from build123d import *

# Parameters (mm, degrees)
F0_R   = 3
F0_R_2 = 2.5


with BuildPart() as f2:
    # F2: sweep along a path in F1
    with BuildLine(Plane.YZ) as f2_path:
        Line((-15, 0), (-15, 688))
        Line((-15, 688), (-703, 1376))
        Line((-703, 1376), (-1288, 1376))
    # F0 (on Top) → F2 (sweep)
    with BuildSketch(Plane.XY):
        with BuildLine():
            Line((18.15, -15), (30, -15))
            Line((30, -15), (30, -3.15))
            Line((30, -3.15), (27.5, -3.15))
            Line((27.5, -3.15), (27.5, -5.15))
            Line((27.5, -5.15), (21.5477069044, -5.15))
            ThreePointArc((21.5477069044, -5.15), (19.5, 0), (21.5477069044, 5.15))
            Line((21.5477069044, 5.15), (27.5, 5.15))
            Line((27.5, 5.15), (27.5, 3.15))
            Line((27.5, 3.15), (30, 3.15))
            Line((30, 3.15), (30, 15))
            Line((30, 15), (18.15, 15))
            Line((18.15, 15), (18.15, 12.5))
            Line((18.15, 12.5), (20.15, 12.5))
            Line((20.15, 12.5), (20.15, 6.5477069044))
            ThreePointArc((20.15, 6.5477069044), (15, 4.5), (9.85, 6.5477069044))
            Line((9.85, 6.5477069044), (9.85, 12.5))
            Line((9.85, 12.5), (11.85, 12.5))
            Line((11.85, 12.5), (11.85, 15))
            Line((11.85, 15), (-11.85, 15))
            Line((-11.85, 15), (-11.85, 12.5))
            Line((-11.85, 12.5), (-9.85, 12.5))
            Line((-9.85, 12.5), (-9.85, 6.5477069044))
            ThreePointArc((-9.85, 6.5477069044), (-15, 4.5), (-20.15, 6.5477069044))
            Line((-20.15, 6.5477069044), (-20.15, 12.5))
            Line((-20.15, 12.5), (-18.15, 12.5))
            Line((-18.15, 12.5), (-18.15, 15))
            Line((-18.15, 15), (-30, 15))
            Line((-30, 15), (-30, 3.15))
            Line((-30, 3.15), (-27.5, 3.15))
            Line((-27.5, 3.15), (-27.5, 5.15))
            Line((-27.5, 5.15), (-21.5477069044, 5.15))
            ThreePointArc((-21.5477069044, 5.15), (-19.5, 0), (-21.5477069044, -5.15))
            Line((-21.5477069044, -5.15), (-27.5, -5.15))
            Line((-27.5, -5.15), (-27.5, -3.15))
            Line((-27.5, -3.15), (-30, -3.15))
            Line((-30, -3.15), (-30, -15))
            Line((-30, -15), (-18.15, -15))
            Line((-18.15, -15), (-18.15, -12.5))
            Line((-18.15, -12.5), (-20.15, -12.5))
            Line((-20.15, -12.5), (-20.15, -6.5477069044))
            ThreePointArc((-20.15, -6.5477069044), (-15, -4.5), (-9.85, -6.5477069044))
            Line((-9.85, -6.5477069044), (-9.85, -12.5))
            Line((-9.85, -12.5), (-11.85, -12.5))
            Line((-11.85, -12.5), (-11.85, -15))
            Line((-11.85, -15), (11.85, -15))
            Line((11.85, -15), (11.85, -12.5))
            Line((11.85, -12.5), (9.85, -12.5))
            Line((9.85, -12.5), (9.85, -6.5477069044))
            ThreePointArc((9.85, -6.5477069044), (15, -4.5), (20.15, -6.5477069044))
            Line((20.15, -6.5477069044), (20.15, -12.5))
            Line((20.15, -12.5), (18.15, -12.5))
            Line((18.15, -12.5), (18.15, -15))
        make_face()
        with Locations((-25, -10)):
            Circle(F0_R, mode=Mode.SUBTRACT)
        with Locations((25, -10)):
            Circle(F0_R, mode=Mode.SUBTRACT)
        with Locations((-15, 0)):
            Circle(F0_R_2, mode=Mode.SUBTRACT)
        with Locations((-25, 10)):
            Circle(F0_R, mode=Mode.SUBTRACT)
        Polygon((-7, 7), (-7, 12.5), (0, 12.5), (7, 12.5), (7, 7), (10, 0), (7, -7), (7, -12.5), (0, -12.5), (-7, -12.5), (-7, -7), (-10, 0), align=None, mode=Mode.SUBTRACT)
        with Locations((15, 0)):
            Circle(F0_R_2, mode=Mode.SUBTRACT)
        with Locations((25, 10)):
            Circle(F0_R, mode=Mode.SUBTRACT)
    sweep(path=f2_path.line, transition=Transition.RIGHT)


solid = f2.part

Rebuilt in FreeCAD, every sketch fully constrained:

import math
import FreeCAD as App
import Part
import Sketcher
from FreeCAD import Vector
Q = App.Units.Quantity


def add_polygon(sketch, points):
    """Adds a closed chain of lines whose ends are joined by coincident constraints."""
    first, n = sketch.GeometryCount, len(points)
    for a, b in zip(points, points[1:] + points[:1]):
        sketch.addGeometry(Part.LineSegment(App.Vector(*a, 0), App.Vector(*b, 0)), False)
    for i in range(n):
        sketch.addConstraint(Sketcher.Constraint("Coincident", first + i, 2, first + (i + 1) % n, 1))

doc = App.newDocument("Part")
body = doc.addObject("PartDesign::Body", "Body")

# Sketch on XY plane
sketch1 = body.newObject("Sketcher::SketchObject", "Sketch")
sketch1.AttachmentSupport = (doc.getObject("XY_Plane"), [""])
sketch1.MapMode = "FlatFace"
sketch1.addGeometry(Part.LineSegment(Vector(18.15, -15, 0), Vector(30, -15, 0)), False)  # 0
sketch1.addGeometry(Part.LineSegment(Vector(30, -15, 0), Vector(30, -3.15, 0)), False)  # 1
sketch1.addGeometry(Part.LineSegment(Vector(30, -3.15, 0), Vector(27.5, -3.15, 0)), False)  # 2
sketch1.addGeometry(Part.LineSegment(Vector(27.5, -3.15, 0), Vector(27.5, -5.15, 0)), False)  # 3
sketch1.addGeometry(Part.LineSegment(Vector(27.5, -5.15, 0), Vector(21.547707, -5.15, 0)), False)  # 4
sketch1.addGeometry(Part.ArcOfCircle(Part.Circle(Vector(27, 0, 0), Vector(0, 0, 1), 7.5), math.radians(136.633178), math.radians(223.366822)), False)  # 5
sketch1.addGeometry(Part.LineSegment(Vector(21.547707, 5.15, 0), Vector(27.5, 5.15, 0)), False)  # 6
sketch1.addGeometry(Part.LineSegment(Vector(27.5, 5.15, 0), Vector(27.5, 3.15, 0)), False)  # 7
sketch1.addGeometry(Part.LineSegment(Vector(27.5, 3.15, 0), Vector(30, 3.15, 0)), False)  # 8
sketch1.addGeometry(Part.LineSegment(Vector(30, 3.15, 0), Vector(30, 15, 0)), False)  # 9
sketch1.addGeometry(Part.LineSegment(Vector(30, 15, 0), Vector(18.15, 15, 0)), False)  # 10
sketch1.addGeometry(Part.LineSegment(Vector(18.15, 15, 0), Vector(18.15, 12.5, 0)), False)  # 11
sketch1.addGeometry(Part.LineSegment(Vector(18.15, 12.5, 0), Vector(20.15, 12.5, 0)), False)  # 12
sketch1.addGeometry(Part.LineSegment(Vector(20.15, 12.5, 0), Vector(20.15, 6.547707, 0)), False)  # 13
sketch1.addGeometry(Part.ArcOfCircle(Part.Circle(Vector(15, 12, 0), Vector(0, 0, 1), 7.5), math.radians(-133.366822), math.radians(-46.633178)), False)  # 14
sketch1.addGeometry(Part.LineSegment(Vector(9.85, 6.547707, 0), Vector(9.85, 12.5, 0)), False)  # 15
sketch1.addGeometry(Part.LineSegment(Vector(9.85, 12.5, 0), Vector(11.85, 12.5, 0)), False)  # 16
sketch1.addGeometry(Part.LineSegment(Vector(11.85, 12.5, 0), Vector(11.85, 15, 0)), False)  # 17
sketch1.addGeometry(Part.LineSegment(Vector(11.85, 15, 0), Vector(-11.85, 15, 0)), False)  # 18
sketch1.addGeometry(Part.LineSegment(Vector(-11.85, 15, 0), Vector(-11.85, 12.5, 0)), False)  # 19
sketch1.addGeometry(Part.LineSegment(Vector(-11.85, 12.5, 0), Vector(-9.85, 12.5, 0)), False)  # 20
sketch1.addGeometry(Part.LineSegment(Vector(-9.85, 12.5, 0), Vector(-9.85, 6.547707, 0)), False)  # 21
sketch1.addGeometry(Part.ArcOfCircle(Part.Circle(Vector(-15, 12, 0), Vector(0, 0, 1), 7.5), math.radians(-133.366822), math.radians(-46.633178)), False)  # 22
sketch1.addGeometry(Part.LineSegment(Vector(-20.15, 6.547707, 0), Vector(-20.15, 12.5, 0)), False)  # 23
sketch1.addGeometry(Part.LineSegment(Vector(-20.15, 12.5, 0), Vector(-18.15, 12.5, 0)), False)  # 24
sketch1.addGeometry(Part.LineSegment(Vector(-18.15, 12.5, 0), Vector(-18.15, 15, 0)), False)  # 25
sketch1.addGeometry(Part.LineSegment(Vector(-18.15, 15, 0), Vector(-30, 15, 0)), False)  # 26
sketch1.addGeometry(Part.LineSegment(Vector(-30, 15, 0), Vector(-30, 3.15, 0)), False)  # 27
sketch1.addGeometry(Part.LineSegment(Vector(-30, 3.15, 0), Vector(-27.5, 3.15, 0)), False)  # 28
sketch1.addGeometry(Part.LineSegment(Vector(-27.5, 3.15, 0), Vector(-27.5, 5.15, 0)), False)  # 29
sketch1.addGeometry(Part.LineSegment(Vector(-27.5, 5.15, 0), Vector(-21.547707, 5.15, 0)), False)  # 30
sketch1.addGeometry(Part.ArcOfCircle(Part.Circle(Vector(-27, 0, 0), Vector(0, 0, 1), 7.5), math.radians(-43.366822), math.radians(43.366822)), False)  # 31
sketch1.addGeometry(Part.LineSegment(Vector(-21.547707, -5.15, 0), Vector(-27.5, -5.15, 0)), False)  # 32
sketch1.addGeometry(Part.LineSegment(Vector(-27.5, -5.15, 0), Vector(-27.5, -3.15, 0)), False)  # 33
sketch1.addGeometry(Part.LineSegment(Vector(-27.5, -3.15, 0), Vector(-30, -3.15, 0)), False)  # 34
sketch1.addGeometry(Part.LineSegment(Vector(-30, -3.15, 0), Vector(-30, -15, 0)), False)  # 35
sketch1.addGeometry(Part.LineSegment(Vector(-30, -15, 0), Vector(-18.15, -15, 0)), False)  # 36
sketch1.addGeometry(Part.LineSegment(Vector(-18.15, -15, 0), Vector(-18.15, -12.5, 0)), False)  # 37
sketch1.addGeometry(Part.LineSegment(Vector(-18.15, -12.5, 0), Vector(-20.15, -12.5, 0)), False)  # 38
sketch1.addGeometry(Part.LineSegment(Vector(-20.15, -12.5, 0), Vector(-20.15, -6.547707, 0)), False)  # 39
sketch1.addGeometry(Part.ArcOfCircle(Part.Circle(Vector(-15, -12, 0), Vector(0, 0, 1), 7.5), math.radians(46.633178), math.radians(133.366822)), False)  # 40
sketch1.addGeometry(Part.LineSegment(Vector(-9.85, -6.547707, 0), Vector(-9.85, -12.5, 0)), False)  # 41
sketch1.addGeometry(Part.LineSegment(Vector(-9.85, -12.5, 0), Vector(-11.85, -12.5, 0)), False)  # 42
sketch1.addGeometry(Part.LineSegment(Vector(-11.85, -12.5, 0), Vector(-11.85, -15, 0)), False)  # 43
sketch1.addGeometry(Part.LineSegment(Vector(-11.85, -15, 0), Vector(11.85, -15, 0)), False)  # 44
sketch1.addGeometry(Part.LineSegment(Vector(11.85, -15, 0), Vector(11.85, -12.5, 0)), False)  # 45
sketch1.addGeometry(Part.LineSegment(Vector(11.85, -12.5, 0), Vector(9.85, -12.5, 0)), False)  # 46
sketch1.addGeometry(Part.LineSegment(Vector(9.85, -12.5, 0), Vector(9.85, -6.547707, 0)), False)  # 47
sketch1.addGeometry(Part.ArcOfCircle(Part.Circle(Vector(15, -12, 0), Vector(0, 0, 1), 7.5), math.radians(46.633178), math.radians(133.366822)), False)  # 48
sketch1.addGeometry(Part.LineSegment(Vector(20.15, -6.547707, 0), Vector(20.15, -12.5, 0)), False)  # 49
sketch1.addGeometry(Part.LineSegment(Vector(20.15, -12.5, 0), Vector(18.15, -12.5, 0)), False)  # 50
sketch1.addGeometry(Part.LineSegment(Vector(18.15, -12.5, 0), Vector(18.15, -15, 0)), False)  # 51
sketch1.addGeometry(Part.Circle(Vector(-25, -10, 0), Vector(0, 0, 1), 3), False)  # 52
sketch1.addGeometry(Part.Circle(Vector(25, -10, 0), Vector(0, 0, 1), 3), False)  # 53
sketch1.addGeometry(Part.Circle(Vector(-15, 0, 0), Vector(0, 0, 1), 2.5), False)  # 54
sketch1.addGeometry(Part.Circle(Vector(-25, 10, 0), Vector(0, 0, 1), 3), False)  # 55
add_polygon(sketch1, [(-10, 0), (-7, 7), (-7, 12.5), (7, 12.5), (7, 7), (10, 0), (7, -7), (7, -12.5), (-7, -12.5), (-7, -7)])  # lines 56-65
sketch1.addGeometry(Part.Circle(Vector(15, 0, 0), Vector(0, 0, 1), 2.5), False)  # 66
sketch1.addGeometry(Part.Circle(Vector(25, 10, 0), Vector(0, 0, 1), 3), False)  # 67
sketch1.addConstraint([
    Sketcher.Constraint("Coincident", 0, 2, 1, 1),
    Sketcher.Constraint("Coincident", 1, 2, 2, 1),
    Sketcher.Constraint("Coincident", 2, 2, 3, 1),
    Sketcher.Constraint("Coincident", 3, 2, 4, 1),
    Sketcher.Constraint("Coincident", 4, 2, 5, 2),
    Sketcher.Constraint("Coincident", 5, 1, 6, 1),
    Sketcher.Constraint("Coincident", 6, 2, 7, 1),
    Sketcher.Constraint("Coincident", 7, 2, 8, 1),
    Sketcher.Constraint("Coincident", 8, 2, 9, 1),
    Sketcher.Constraint("Coincident", 9, 2, 10, 1),
    Sketcher.Constraint("Coincident", 10, 2, 11, 1),
    Sketcher.Constraint("Coincident", 11, 2, 12, 1),
    Sketcher.Constraint("Coincident", 12, 2, 13, 1),
    Sketcher.Constraint("Coincident", 13, 2, 14, 2),
    Sketcher.Constraint("Coincident", 14, 1, 15, 1),
    Sketcher.Constraint("Coincident", 15, 2, 16, 1),
    Sketcher.Constraint("Coincident", 16, 2, 17, 1),
    Sketcher.Constraint("Coincident", 17, 2, 18, 1),
    Sketcher.Constraint("Coincident", 18, 2, 19, 1),
    Sketcher.Constraint("Coincident", 19, 2, 20, 1),
    Sketcher.Constraint("Coincident", 20, 2, 21, 1),
    Sketcher.Constraint("Coincident", 21, 2, 22, 2),
    Sketcher.Constraint("Coincident", 22, 1, 23, 1),
    Sketcher.Constraint("Coincident", 23, 2, 24, 1),
    Sketcher.Constraint("Coincident", 24, 2, 25, 1),
    Sketcher.Constraint("Coincident", 25, 2, 26, 1),
    Sketcher.Constraint("Coincident", 26, 2, 27, 1),
    Sketcher.Constraint("Coincident", 27, 2, 28, 1),
    Sketcher.Constraint("Coincident", 28, 2, 29, 1),
    Sketcher.Constraint("Coincident", 29, 2, 30, 1),
    Sketcher.Constraint("Coincident", 30, 2, 31, 2),
    Sketcher.Constraint("Coincident", 31, 1, 32, 1),
    Sketcher.Constraint("Coincident", 32, 2, 33, 1),
    Sketcher.Constraint("Coincident", 33, 2, 34, 1),
    Sketcher.Constraint("Coincident", 34, 2, 35, 1),
    Sketcher.Constraint("Coincident", 35, 2, 36, 1),
    Sketcher.Constraint("Coincident", 36, 2, 37, 1),
    Sketcher.Constraint("Coincident", 37, 2, 38, 1),
    Sketcher.Constraint("Coincident", 38, 2, 39, 1),
    Sketcher.Constraint("Coincident", 39, 2, 40, 2),
    Sketcher.Constraint("Coincident", 40, 1, 41, 1),
    Sketcher.Constraint("Coincident", 41, 2, 42, 1),
    Sketcher.Constraint("Coincident", 42, 2, 43, 1),
    Sketcher.Constraint("Coincident", 43, 2, 44, 1),
    Sketcher.Constraint("Coincident", 44, 2, 45, 1),
    Sketcher.Constraint("Coincident", 45, 2, 46, 1),
    Sketcher.Constraint("Coincident", 46, 2, 47, 1),
    Sketcher.Constraint("Coincident", 47, 2, 48, 2),
    Sketcher.Constraint("Coincident", 48, 1, 49, 1),
    Sketcher.Constraint("Coincident", 49, 2, 50, 1),
    Sketcher.Constraint("Coincident", 50, 2, 51, 1),
    Sketcher.Constraint("Coincident", 51, 2, 0, 1),
    Sketcher.Constraint("Horizontal", 0),
    Sketcher.Constraint("Vertical", 1),
    Sketcher.Constraint("Horizontal", 2),
    Sketcher.Constraint("Vertical", 3),
    Sketcher.Constraint("Horizontal", 4),
    Sketcher.Constraint("Horizontal", 6),
    Sketcher.Constraint("Vertical", 7),
    Sketcher.Constraint("Horizontal", 8),
    Sketcher.Constraint("Vertical", 9),
    Sketcher.Constraint("Horizontal", 10),
    Sketcher.Constraint("Vertical", 11),
    Sketcher.Constraint("Horizontal", 12),
    Sketcher.Constraint("Vertical", 13),
    Sketcher.Constraint("Vertical", 15),
    Sketcher.Constraint("Horizontal", 16),
    Sketcher.Constraint("Vertical", 17),
    Sketcher.Constraint("Horizontal", 18),
    Sketcher.Constraint("Vertical", 19),
    Sketcher.Constraint("Horizontal", 20),
    Sketcher.Constraint("Vertical", 21),
    Sketcher.Constraint("Vertical", 23),
    Sketcher.Constraint("Horizontal", 24),
    Sketcher.Constraint("Vertical", 25),
    Sketcher.Constraint("Horizontal", 26),
    Sketcher.Constraint("Vertical", 27),
    Sketcher.Constraint("Horizontal", 28),
    Sketcher.Constraint("Vertical", 29),
    Sketcher.Constraint("Horizontal", 30),
    Sketcher.Constraint("Horizontal", 32),
    Sketcher.Constraint("Vertical", 33),
    Sketcher.Constraint("Horizontal", 34),
    Sketcher.Constraint("Vertical", 35),
    Sketcher.Constraint("Horizontal", 36),
    Sketcher.Constraint("Vertical", 37),
    Sketcher.Constraint("Horizontal", 38),
    Sketcher.Constraint("Vertical", 39),
    Sketcher.Constraint("Vertical", 41),
    Sketcher.Constraint("Horizontal", 42),
    Sketcher.Constraint("Vertical", 43),
    Sketcher.Constraint("Horizontal", 44),
    Sketcher.Constraint("Vertical", 45),
    Sketcher.Constraint("Horizontal", 46),
    Sketcher.Constraint("Vertical", 47),
    Sketcher.Constraint("Vertical", 49),
    Sketcher.Constraint("Horizontal", 50),
    Sketcher.Constraint("Vertical", 51),
    Sketcher.Constraint("Vertical", 57),
    Sketcher.Constraint("Horizontal", 58),
    Sketcher.Constraint("Vertical", 59),
    Sketcher.Constraint("Vertical", 62),
    Sketcher.Constraint("Horizontal", 63),
    Sketcher.Constraint("Vertical", 64),
    Sketcher.Constraint("Equal", 5, 14),
    Sketcher.Constraint("Equal", 14, 22),
    Sketcher.Constraint("Equal", 22, 31),
    Sketcher.Constraint("Equal", 31, 40),
    Sketcher.Constraint("Equal", 40, 48),
    Sketcher.Constraint("Equal", 52, 53),
    Sketcher.Constraint("Equal", 53, 55),
    Sketcher.Constraint("Equal", 54, 66),
    Sketcher.Constraint("Equal", 55, 67),
    Sketcher.Constraint("Symmetric", 5, 3, 31, 3, -1, 1),
    Sketcher.Constraint("Symmetric", 14, 3, 40, 3, -1, 1),
    Sketcher.Constraint("Symmetric", 22, 3, 48, 3, -1, 1),
    Sketcher.Constraint("Symmetric", 53, 3, 55, 3, -1, 1),
    Sketcher.Constraint("Symmetric", 54, 3, 66, 3, -1, 1),
    Sketcher.Constraint("Symmetric", 52, 3, 67, 3, -1, 1),
    Sketcher.Constraint("Symmetric", 0, 2, 26, 2, -1, 1),
    Sketcher.Constraint("Symmetric", 2, 2, 28, 2, -1, 1),
    Sketcher.Constraint("Symmetric", 6, 2, 32, 2, -1, 1),
    Sketcher.Constraint("Symmetric", 8, 2, 34, 2, -1, 1),
    Sketcher.Constraint("Symmetric", 10, 2, 36, 2, -1, 1),
    Sketcher.Constraint("Symmetric", 12, 2, 38, 2, -1, 1),
    Sketcher.Constraint("Symmetric", 15, 2, 41, 2, -1, 1),
    Sketcher.Constraint("Symmetric", 17, 2, 43, 2, -1, 1),
    Sketcher.Constraint("Symmetric", 19, 2, 45, 2, -1, 1),
    Sketcher.Constraint("Symmetric", 23, 2, 49, 2, -1, 1),
    Sketcher.Constraint("Symmetric", 56, 2, 61, 2, -1, 1),
    Sketcher.Constraint("Symmetric", 58, 2, 63, 2, -1, 1),
    Sketcher.Constraint("Symmetric", 60, 2, 65, 2, -1, 1),
    Sketcher.Constraint("Symmetric", 14, 3, 22, 3, -2),
    Sketcher.Constraint("Symmetric", 52, 3, 53, 3, -2),
    Sketcher.Constraint("Symmetric", 16, 2, 19, 2, -2),
    Sketcher.Constraint("Symmetric", 12, 2, 23, 2, -2),
    Sketcher.Constraint("Symmetric", 10, 2, 25, 2, -2),
    Sketcher.Constraint("Symmetric", 8, 2, 27, 2, -2),
    Sketcher.Constraint("Symmetric", 6, 2, 29, 2, -2),
    Sketcher.Constraint("Symmetric", 4, 2, 31, 1, -2),
    Sketcher.Constraint("Symmetric", 56, 2, 59, 2, -2),
    Sketcher.Constraint("PointOnObject", 54, 3, -1),
    Sketcher.Constraint("PointOnObject", 60, 2, -1),
    Sketcher.Constraint("Parallel", 60, 65),
    Sketcher.Constraint("Horizontal", 13, 2, 14, 1),
    Sketcher.Constraint("Horizontal", 12, 2, 15, 2),
    Sketcher.Constraint("Horizontal", 10, 2, 17, 2),
    Sketcher.Constraint("Horizontal", 14, 1, 21, 2),
    Sketcher.Constraint("Horizontal", 40, 1, 47, 2),
    Sketcher.Constraint("Horizontal", 24, 2, 57, 2),
    Sketcher.Constraint("Vertical", 40, 3, 54, 3),
    Sketcher.Constraint("Vertical", 11, 2, 50, 2),
    Sketcher.Constraint("Equal", 12, 16),
    Sketcher.Constraint("Equal", 36, 1),
    Sketcher.Constraint("Equal", 50, 3),
    Sketcher.Constraint("Equal", 34, 11),
    Sketcher.Constraint("Equal", 32, 13),
    Sketcher.Constraint("Diameter", 52, Q("6 mm")),
    Sketcher.Constraint("Diameter", 54, Q("5 mm")),
    Sketcher.Constraint("Radius", 5, Q("7.5 mm")),
    Sketcher.Constraint("DistanceX", 12, 1, 12, 2, Q("2 mm")),
    Sketcher.Constraint("DistanceX", 58, 1, 58, 2, Q("14 mm")),
    Sketcher.Constraint("DistanceX", 2, 2, 2, 1, Q("2.5 mm")),
    Sketcher.Constraint("DistanceX", 18, 2, 18, 1, Q("23.7 mm")),
    Sketcher.Constraint("DistanceY", 57, 1, 57, 2, Q("5.5 mm")),
    Sketcher.Constraint("DistanceX", -1, 1, 5, 3, Q("27 mm")),
    Sketcher.Constraint("DistanceX", -1, 1, 14, 3, Q("15 mm")),
    Sketcher.Constraint("DistanceY", -1, 1, 14, 3, Q("12 mm")),
    Sketcher.Constraint("DistanceX", 52, 3, -1, 1, Q("25 mm")),
    Sketcher.Constraint("DistanceY", 52, 3, -1, 1, Q("10 mm")),
    Sketcher.Constraint("DistanceX", -1, 1, 0, 2, Q("30 mm")),
    Sketcher.Constraint("DistanceX", -1, 1, 60, 2, Q("10 mm")),
])

# Sketch on YZ plane
sketch2 = body.newObject("Sketcher::SketchObject", "Sketch001")
sketch2.AttachmentSupport = (doc.getObject("YZ_Plane"), [""])
sketch2.MapMode = "FlatFace"
sketch2.addGeometry([
    Part.LineSegment(Vector(-15, 0, 0), Vector(-15, 688, 0)),
    Part.LineSegment(Vector(-15, 688, 0), Vector(-703, 1376, 0)),
    Part.LineSegment(Vector(-703, 1376, 0), Vector(-1288, 1376, 0)),
], False)
sketch2.addConstraint([
    Sketcher.Constraint("Coincident", 0, 2, 1, 1),
    Sketcher.Constraint("Coincident", 1, 2, 2, 1),
    Sketcher.Constraint("Vertical", 0),
    Sketcher.Constraint("Horizontal", 2),
    Sketcher.Constraint("PointOnObject", 0, 1, -1),
    Sketcher.Constraint("DistanceX", 2, 2, 2, 1, Q("585 mm")),
    Sketcher.Constraint("DistanceY", 0, 1, 0, 2, Q("688 mm")),
    Sketcher.Constraint("Angle", 1, Q("135 deg")),
    Sketcher.Constraint("DistanceX", 0, 1, -1, 1, Q("15 mm")),
    Sketcher.Constraint("DistanceX", 1, 2, -1, 1, Q("703 mm")),
])
doc.recompute()

additivepipe = body.newObject("PartDesign::AdditivePipe", "AdditivePipe")
additivepipe.Profile = sketch1
additivepipe.Spine = (sketch2, ["Edge1", "Edge2", "Edge3"])
additivepipe.Transition = "Right corner"

doc.recompute()
